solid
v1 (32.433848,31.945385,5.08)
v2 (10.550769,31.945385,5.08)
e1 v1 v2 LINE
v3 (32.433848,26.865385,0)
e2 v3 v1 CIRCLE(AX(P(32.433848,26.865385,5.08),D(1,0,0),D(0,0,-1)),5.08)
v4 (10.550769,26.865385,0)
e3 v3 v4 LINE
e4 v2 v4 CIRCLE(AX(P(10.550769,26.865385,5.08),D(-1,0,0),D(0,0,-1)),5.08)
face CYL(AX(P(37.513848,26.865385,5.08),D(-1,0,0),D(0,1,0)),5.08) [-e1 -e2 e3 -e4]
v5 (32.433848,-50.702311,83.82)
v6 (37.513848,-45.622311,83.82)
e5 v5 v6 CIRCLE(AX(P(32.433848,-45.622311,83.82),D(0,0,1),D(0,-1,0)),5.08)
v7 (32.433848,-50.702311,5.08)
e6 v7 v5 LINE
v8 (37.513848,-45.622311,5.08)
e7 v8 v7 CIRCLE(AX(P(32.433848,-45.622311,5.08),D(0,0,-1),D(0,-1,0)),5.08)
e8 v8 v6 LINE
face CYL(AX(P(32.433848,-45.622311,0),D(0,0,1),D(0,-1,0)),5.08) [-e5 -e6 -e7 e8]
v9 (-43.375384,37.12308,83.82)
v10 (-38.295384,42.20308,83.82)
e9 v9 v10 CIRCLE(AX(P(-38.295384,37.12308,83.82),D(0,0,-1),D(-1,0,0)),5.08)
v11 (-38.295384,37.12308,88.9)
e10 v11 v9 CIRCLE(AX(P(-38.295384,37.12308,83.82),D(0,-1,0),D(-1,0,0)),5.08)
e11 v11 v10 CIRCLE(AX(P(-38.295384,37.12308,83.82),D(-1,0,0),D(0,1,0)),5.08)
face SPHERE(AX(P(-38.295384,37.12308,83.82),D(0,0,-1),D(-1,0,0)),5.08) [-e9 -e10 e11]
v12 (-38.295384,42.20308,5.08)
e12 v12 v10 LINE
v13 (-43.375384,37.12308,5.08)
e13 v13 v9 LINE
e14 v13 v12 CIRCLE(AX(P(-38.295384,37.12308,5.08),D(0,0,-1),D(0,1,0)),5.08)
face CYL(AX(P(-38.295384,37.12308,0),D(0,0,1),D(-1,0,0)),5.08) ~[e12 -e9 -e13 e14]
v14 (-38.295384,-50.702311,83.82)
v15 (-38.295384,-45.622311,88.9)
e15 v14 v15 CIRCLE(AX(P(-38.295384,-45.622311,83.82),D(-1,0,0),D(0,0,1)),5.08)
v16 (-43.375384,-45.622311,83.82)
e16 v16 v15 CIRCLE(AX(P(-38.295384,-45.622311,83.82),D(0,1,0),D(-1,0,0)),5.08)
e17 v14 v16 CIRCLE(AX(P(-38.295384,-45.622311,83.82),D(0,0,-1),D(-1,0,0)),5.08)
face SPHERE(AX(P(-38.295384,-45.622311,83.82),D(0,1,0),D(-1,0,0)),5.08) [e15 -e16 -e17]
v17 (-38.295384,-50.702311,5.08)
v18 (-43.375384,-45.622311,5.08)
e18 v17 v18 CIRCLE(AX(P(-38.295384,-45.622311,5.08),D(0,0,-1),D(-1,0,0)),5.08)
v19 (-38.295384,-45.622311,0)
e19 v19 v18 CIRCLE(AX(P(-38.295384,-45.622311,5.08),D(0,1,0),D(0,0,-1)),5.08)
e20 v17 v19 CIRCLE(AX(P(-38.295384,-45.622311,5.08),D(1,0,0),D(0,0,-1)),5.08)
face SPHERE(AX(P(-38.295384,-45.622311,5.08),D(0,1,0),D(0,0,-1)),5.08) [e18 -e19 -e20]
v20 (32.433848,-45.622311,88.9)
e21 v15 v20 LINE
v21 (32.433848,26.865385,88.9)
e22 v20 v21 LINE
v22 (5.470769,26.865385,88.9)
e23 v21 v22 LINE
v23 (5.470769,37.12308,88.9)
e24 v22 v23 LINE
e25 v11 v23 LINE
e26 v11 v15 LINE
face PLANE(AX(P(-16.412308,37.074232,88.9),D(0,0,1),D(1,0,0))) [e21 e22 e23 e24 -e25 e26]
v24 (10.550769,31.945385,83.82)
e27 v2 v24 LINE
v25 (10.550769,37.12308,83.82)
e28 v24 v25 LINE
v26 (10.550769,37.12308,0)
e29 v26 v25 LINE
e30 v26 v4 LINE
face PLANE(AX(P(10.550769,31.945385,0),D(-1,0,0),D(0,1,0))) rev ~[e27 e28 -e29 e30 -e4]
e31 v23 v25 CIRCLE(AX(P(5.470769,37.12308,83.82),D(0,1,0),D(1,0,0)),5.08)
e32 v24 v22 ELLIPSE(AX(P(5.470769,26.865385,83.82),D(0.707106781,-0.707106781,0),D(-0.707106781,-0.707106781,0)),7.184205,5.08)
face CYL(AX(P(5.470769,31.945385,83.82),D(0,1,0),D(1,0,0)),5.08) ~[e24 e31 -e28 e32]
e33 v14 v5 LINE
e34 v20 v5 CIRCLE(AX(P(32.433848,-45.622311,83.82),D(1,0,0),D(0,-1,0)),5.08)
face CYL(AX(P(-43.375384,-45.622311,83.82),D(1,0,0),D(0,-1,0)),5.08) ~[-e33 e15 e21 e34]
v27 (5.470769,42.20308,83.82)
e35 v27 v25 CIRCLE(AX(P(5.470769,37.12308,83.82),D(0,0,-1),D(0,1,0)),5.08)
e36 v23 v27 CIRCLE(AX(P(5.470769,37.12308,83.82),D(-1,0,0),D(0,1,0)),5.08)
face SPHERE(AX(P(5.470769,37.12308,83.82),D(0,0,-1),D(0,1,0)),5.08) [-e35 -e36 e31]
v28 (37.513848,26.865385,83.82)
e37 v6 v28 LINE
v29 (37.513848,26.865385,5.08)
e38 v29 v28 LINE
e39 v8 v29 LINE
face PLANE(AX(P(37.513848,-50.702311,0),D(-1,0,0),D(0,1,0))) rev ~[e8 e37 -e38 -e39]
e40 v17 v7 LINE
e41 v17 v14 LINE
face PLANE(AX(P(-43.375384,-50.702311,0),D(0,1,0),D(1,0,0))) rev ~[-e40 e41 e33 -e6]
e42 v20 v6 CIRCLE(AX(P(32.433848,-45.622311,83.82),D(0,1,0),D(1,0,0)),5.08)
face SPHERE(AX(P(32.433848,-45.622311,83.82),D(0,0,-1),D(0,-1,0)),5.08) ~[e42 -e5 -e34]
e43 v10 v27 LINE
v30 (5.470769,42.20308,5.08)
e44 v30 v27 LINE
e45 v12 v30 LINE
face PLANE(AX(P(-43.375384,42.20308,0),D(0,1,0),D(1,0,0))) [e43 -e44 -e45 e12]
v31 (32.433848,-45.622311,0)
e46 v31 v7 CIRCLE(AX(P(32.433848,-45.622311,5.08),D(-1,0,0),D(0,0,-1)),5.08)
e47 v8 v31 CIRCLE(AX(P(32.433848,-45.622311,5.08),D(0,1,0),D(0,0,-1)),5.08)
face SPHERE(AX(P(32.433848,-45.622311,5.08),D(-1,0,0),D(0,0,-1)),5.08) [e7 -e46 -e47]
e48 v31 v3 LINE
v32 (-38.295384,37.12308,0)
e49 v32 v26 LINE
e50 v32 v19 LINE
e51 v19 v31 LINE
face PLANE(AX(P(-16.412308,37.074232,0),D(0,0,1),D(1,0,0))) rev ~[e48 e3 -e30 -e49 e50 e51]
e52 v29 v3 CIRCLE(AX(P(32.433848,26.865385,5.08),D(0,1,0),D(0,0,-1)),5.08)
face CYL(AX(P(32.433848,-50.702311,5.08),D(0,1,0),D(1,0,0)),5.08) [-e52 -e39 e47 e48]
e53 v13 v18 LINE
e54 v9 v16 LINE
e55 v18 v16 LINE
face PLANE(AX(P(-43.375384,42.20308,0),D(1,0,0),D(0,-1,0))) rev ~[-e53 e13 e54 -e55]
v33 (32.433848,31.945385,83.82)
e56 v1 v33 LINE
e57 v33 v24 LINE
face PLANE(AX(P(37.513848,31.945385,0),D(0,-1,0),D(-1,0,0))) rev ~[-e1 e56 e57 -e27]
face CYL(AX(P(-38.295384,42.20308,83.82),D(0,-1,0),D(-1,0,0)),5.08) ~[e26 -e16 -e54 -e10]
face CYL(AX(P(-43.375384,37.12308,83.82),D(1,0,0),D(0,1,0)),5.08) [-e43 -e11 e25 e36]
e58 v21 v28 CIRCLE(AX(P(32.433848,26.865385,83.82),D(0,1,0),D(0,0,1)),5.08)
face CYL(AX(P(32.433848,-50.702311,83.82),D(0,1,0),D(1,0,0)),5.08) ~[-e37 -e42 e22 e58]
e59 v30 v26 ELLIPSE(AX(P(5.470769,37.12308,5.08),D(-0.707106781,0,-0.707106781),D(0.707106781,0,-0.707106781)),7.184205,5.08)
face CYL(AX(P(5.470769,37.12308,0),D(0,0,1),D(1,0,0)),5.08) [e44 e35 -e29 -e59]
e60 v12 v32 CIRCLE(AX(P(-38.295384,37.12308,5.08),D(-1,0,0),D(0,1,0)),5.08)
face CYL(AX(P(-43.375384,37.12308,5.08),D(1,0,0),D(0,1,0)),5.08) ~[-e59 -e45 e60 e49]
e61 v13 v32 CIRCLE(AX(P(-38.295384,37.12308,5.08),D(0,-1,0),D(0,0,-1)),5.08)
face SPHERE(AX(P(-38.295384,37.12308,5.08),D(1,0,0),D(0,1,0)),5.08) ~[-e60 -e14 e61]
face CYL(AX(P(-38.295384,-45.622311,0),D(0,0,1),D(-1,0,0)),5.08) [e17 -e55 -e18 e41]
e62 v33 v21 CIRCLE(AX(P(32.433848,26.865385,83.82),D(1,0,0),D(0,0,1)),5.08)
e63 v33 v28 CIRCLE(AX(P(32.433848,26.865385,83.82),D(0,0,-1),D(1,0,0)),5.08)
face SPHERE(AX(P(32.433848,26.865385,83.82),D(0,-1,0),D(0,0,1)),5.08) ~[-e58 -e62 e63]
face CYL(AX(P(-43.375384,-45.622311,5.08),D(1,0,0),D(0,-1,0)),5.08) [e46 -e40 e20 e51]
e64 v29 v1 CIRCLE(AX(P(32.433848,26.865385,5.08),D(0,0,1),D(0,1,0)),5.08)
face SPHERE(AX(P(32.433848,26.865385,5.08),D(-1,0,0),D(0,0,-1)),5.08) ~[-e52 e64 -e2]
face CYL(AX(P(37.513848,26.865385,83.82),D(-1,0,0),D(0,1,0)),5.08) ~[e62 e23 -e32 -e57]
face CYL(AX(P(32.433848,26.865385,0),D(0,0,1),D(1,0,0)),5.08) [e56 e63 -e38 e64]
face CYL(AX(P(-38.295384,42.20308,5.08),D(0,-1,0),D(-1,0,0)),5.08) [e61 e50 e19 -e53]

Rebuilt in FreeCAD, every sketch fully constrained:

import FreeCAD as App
import Part
import Sketcher
from FreeCAD import Vector
Q = App.Units.Quantity


def edges_at(feature, points):
    """Names of the edges that pass closest to the given points."""
    edges = feature.Shape.Edges
    near = lambda p: min(range(len(edges)), key=lambda i: edges[i].distToShape(Part.Vertex(*p))[0])
    return sorted({f"Edge{near(p) + 1}" for p in points})

doc = App.newDocument("Part")
body = doc.addObject("PartDesign::Body", "Body")

# Sketch on XY plane
sketch1 = body.newObject("Sketcher::SketchObject", "Sketch")
sketch1.AttachmentSupport = (doc.getObject("XY_Plane"), [""])
sketch1.MapMode = "FlatFace"
sketch1.addGeometry([
    Part.LineSegment(Vector(-43, 42, 0), Vector(-43, -51, 0)),  # 0
    Part.LineSegment(Vector(-43, -51, 0), Vector(38, -51, 0)),  # 1
    Part.LineSegment(Vector(38, -51, 0), Vector(38, 32, 0)),  # 2
    Part.LineSegment(Vector(38, 32, 0), Vector(11, 32, 0)),  # 3
    Part.LineSegment(Vector(11, 32, 0), Vector(11, 42, 0)),  # 4
    Part.LineSegment(Vector(11, 42, 0), Vector(-43, 42, 0)),  # 5
], False)
sketch1.addConstraint([
    Sketcher.Constraint("Coincident", 0, 2, 1, 1),
    Sketcher.Constraint("Coincident", 1, 2, 2, 1),
    Sketcher.Constraint("Coincident", 2, 2, 3, 1),
    Sketcher.Constraint("Coincident", 3, 2, 4, 1),
    Sketcher.Constraint("Coincident", 4, 2, 5, 1),
    Sketcher.Constraint("Coincident", 5, 2, 0, 1),
    Sketcher.Constraint("Vertical", 0),
    Sketcher.Constraint("Horizontal", 1),
    Sketcher.Constraint("Vertical", 2),
    Sketcher.Constraint("Horizontal", 3),
    Sketcher.Constraint("Vertical", 4),
    Sketcher.Constraint("Horizontal", 5),
    Sketcher.Constraint("DistanceX", 3, 2, 3, 1, Q("26.963079 mm")),
    Sketcher.Constraint("DistanceY", 0, 2, 0, 1, Q("92.905391 mm")),
    Sketcher.Constraint("DistanceX", 1, 1, 1, 2, Q("80.889232 mm")),
    Sketcher.Constraint("DistanceY", 2, 1, 2, 2, Q("82.647696 mm")),
    Sketcher.Constraint("DistanceY", 0, 2, -1, 1, Q("50.702311 mm")),
    Sketcher.Constraint("DistanceX", -1, 1, 1, 2, Q("37.513848 mm")),
])
pad1 = body.newObject("PartDesign::Pad", "Pad")
pad1.Profile = sketch1
pad1.Length = Q("3.5 in")
doc.recompute()

fillet = body.newObject("PartDesign::Fillet", "Fillet")
fillet.Base = (pad1, edges_at(pad1, [
    (24.032, 31.945, 0),
    (-16.412, 42.203, 0),
    (10.551, 42.203, 44.45),
    (-43.375, 42.203, 44.45),
    (-43.375, -4.25, 0),
    (-2.931, -50.702, 0),
    (37.514, -9.378, 0),
    (-43.375, -4.25, 88.9),
    (-43.375, -50.702, 44.45),
    (37.514, -50.702, 44.45),
    (-2.931, -50.702, 88.9),
    (37.514, -9.378, 88.9),
    (24.032, 31.945, 88.9),
    (-16.412, 42.203, 88.9),
    (10.551, 37.074, 88.9),
    (37.514, 31.945, 44.45),
]))
fillet.Radius = Q("0.2 in")

doc.recompute()
